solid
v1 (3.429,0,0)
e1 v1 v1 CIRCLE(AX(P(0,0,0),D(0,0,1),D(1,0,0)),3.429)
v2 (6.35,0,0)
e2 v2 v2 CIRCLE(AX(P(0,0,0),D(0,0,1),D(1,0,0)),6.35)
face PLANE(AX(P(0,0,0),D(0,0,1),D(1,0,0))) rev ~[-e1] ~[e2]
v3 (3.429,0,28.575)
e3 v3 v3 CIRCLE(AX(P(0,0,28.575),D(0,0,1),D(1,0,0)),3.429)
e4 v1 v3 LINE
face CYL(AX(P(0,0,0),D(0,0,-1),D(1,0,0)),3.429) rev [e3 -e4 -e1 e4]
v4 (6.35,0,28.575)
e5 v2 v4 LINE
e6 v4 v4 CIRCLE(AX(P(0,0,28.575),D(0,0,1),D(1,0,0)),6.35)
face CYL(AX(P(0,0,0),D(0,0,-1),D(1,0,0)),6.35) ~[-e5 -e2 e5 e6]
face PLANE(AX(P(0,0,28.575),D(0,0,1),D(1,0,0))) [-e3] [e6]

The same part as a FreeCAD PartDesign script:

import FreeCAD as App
import Part
import Sketcher

V = App.Vector
Q = App.Units.Quantity

doc = App.newDocument("Part")
body = doc.addObject("PartDesign::Body", "Body")

# Sketch on XY plane
sketch1 = body.newObject("Sketcher::SketchObject", "Sketch")
sketch1.AttachmentSupport = (doc.getObject("XY_Plane"), [""])
sketch1.MapMode = "FlatFace"
sketch1.addGeometry([
    Part.Circle(V(0, 0, 0), V(0, 0, 1), 6.3),
    Part.Circle(V(0, 0, 0), V(0, 0, 1), 3.4),
], False)
sketch1.addConstraint([
    Sketcher.Constraint("Coincident", 0, 3, -1, 1),
    Sketcher.Constraint("Coincident", 1, 3, -1, 1),
    Sketcher.Constraint("Diameter", 0, Q("0.5 in")),
    Sketcher.Constraint("Diameter", 1, Q("0.27 in")),
])
pad1 = body.newObject("PartDesign::Pad", "Pad")
pad1.Profile = sketch1
pad1.Length = Q("1.125 in")

doc.recompute()
